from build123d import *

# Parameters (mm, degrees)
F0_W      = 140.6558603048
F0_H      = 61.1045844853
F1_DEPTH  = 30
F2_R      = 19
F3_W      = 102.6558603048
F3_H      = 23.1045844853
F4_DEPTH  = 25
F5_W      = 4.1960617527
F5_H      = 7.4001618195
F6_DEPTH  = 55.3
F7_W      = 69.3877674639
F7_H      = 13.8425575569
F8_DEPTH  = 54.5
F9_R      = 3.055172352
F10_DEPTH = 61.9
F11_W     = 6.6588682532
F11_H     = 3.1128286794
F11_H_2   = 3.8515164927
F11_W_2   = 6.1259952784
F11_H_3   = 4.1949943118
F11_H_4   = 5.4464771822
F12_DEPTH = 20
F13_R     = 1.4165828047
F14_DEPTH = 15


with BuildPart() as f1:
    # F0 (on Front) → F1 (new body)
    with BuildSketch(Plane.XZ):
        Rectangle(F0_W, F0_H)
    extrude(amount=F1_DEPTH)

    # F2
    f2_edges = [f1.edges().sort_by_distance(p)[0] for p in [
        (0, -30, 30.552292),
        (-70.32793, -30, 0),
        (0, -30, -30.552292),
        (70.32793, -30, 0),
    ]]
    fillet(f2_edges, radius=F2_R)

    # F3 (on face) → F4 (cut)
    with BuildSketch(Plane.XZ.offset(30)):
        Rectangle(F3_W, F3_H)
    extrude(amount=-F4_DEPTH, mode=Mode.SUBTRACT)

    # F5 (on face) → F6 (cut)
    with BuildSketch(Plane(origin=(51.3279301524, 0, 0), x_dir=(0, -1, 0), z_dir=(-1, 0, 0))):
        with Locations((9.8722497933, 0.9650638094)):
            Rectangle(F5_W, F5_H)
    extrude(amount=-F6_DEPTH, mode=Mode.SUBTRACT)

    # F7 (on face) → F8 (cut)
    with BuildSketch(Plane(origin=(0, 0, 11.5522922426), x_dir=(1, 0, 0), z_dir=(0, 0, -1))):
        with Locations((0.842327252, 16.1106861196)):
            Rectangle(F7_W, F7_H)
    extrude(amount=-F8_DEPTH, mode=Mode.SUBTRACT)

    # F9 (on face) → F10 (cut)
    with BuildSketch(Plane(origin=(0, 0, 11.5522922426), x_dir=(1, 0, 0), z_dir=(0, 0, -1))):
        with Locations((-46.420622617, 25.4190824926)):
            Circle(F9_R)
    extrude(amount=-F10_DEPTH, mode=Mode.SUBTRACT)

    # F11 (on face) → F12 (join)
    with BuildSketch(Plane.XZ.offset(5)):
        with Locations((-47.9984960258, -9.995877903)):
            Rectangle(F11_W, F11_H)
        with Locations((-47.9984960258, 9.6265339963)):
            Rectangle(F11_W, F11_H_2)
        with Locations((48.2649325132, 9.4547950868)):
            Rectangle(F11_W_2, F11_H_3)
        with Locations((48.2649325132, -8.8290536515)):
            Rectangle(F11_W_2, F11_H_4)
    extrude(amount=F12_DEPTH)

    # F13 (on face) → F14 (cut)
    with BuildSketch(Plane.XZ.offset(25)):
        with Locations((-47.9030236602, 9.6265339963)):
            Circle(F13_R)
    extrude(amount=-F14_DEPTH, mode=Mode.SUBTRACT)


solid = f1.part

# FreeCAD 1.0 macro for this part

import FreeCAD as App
import Part
import Sketcher
from FreeCAD import Vector
Q = App.Units.Quantity


def edges_at(feature, points):
    """Names of the edges that pass closest to the given points."""
    edges = feature.Shape.Edges
    near = lambda p: min(range(len(edges)), key=lambda i: edges[i].distToShape(Part.Vertex(*p))[0])
    return sorted({f"Edge{near(p) + 1}" for p in points})

doc = App.newDocument("Part")
body = doc.addObject("PartDesign::Body", "Body")

sketch1 = body.newObject("Sketcher::SketchObject", "Sketch")
sketch1.AttachmentSupport = (doc.getObject("XZ_Plane"), [""])
sketch1.MapMode = "FlatFace"
sketch1.addGeometry([
    Part.LineSegment(Vector(-70, 31, 0), Vector(-70, -31, 0)),
    Part.LineSegment(Vector(-70, -31, 0), Vector(70, -31, 0)),
    Part.LineSegment(Vector(70, -31, 0), Vector(70, 31, 0)),
    Part.LineSegment(Vector(70, 31, 0), Vector(-70, 31, 0)),
], False)
sketch1.addConstraint([
    Sketcher.Constraint("Coincident", 0, 2, 1, 1),
    Sketcher.Constraint("Coincident", 1, 2, 2, 1),
    Sketcher.Constraint("Coincident", 2, 2, 3, 1),
    Sketcher.Constraint("Coincident", 3, 2, 0, 1),
    Sketcher.Constraint("Vertical", 0),
    Sketcher.Constraint("Horizontal", 1),
    Sketcher.Constraint("Vertical", 2),
    Sketcher.Constraint("Horizontal", 3),
    Sketcher.Constraint("Symmetric", 0, 2, 2, 2, -1, 1),
    Sketcher.Constraint("DistanceX", 1, 1, 1, 2, Q("140.65586 mm")),
    Sketcher.Constraint("DistanceY", 0, 2, 0, 1, Q("61.104584 mm")),
])
pad1 = body.newObject("PartDesign::Pad", "Pad")
pad1.Profile = sketch1
pad1.Length = 30
doc.recompute()

fillet = body.newObject("PartDesign::Fillet", "Fillet")
fillet.Base = (pad1, edges_at(pad1, [
    (0, -30, 30.552),
    (-70.328, -30, 0),
    (0, -30, -30.552),
    (70.328, -30, 0),
]))
fillet.Radius = 19

sketch2 = body.newObject("Sketcher::SketchObject", "Sketch001")
sketch2.AttachmentSupport = (doc.getObject("XZ_Plane"), [""])
sketch2.MapMode = "FlatFace"
sketch2.AttachmentOffset = App.Placement(Vector(0, 0, 30), App.Rotation())
sketch2.addGeometry([
    Part.LineSegment(Vector(-51, 12, 0), Vector(-51, -12, 0)),
    Part.LineSegment(Vector(-51, -12, 0), Vector(51, -12, 0)),
    Part.LineSegment(Vector(51, -12, 0), Vector(51, 12, 0)),
    Part.LineSegment(Vector(51, 12, 0), Vector(-51, 12, 0)),
], False)
sketch2.addConstraint([
    Sketcher.Constraint("Coincident", 0, 2, 1, 1),
    Sketcher.Constraint("Coincident", 1, 2, 2, 1),
    Sketcher.Constraint("Coincident", 2, 2, 3, 1),
    Sketcher.Constraint("Coincident", 3, 2, 0, 1),
    Sketcher.Constraint("Vertical", 0),
    Sketcher.Constraint("Horizontal", 1),
    Sketcher.Constraint("Vertical", 2),
    Sketcher.Constraint("Horizontal", 3),
    Sketcher.Constraint("Symmetric", 0, 2, 2, 2, -1, 1),
    Sketcher.Constraint("DistanceX", 1, 1, 1, 2, Q("102.65586 mm")),
    Sketcher.Constraint("DistanceY", 0, 2, 0, 1, Q("23.104584 mm")),
])
pocket1 = body.newObject("PartDesign::Pocket", "Pocket")
pocket1.Profile = sketch2
pocket1.Length = 25

sketch3 = body.newObject("Sketcher::SketchObject", "Sketch002")
sketch3.AttachmentSupport = (doc.getObject("YZ_Plane"), [""])
sketch3.MapMode = "FlatFace"
sketch3.AttachmentOffset = App.Placement(Vector(0, 0, 51.32793), App.Rotation())
sketch3.addGeometry([
    Part.LineSegment(Vector(-7.8, 4.7, 0), Vector(-7.8, -2.7, 0)),
    Part.LineSegment(Vector(-7.8, -2.7, 0), Vector(-12, -2.7, 0)),
    Part.LineSegment(Vector(-12, -2.7, 0), Vector(-12, 4.7, 0)),
    Part.LineSegment(Vector(-12, 4.7, 0), Vector(-7.8, 4.7, 0)),
], False)
sketch3.addConstraint([
    Sketcher.Constraint("Coincident", 0, 2, 1, 1),
    Sketcher.Constraint("Coincident", 1, 2, 2, 1),
    Sketcher.Constraint("Coincident", 2, 2, 3, 1),
    Sketcher.Constraint("Coincident", 3, 2, 0, 1),
    Sketcher.Constraint("Vertical", 0),
    Sketcher.Constraint("Horizontal", 1),
    Sketcher.Constraint("Vertical", 2),
    Sketcher.Constraint("Horizontal", 3),
    Sketcher.Constraint("DistanceX", 1, 2, 1, 1, Q("4.196062 mm")),
    Sketcher.Constraint("DistanceY", 0, 2, 0, 1, Q("7.400162 mm")),
    Sketcher.Constraint("DistanceX", 0, 2, -1, 1, Q("7.774219 mm")),
    Sketcher.Constraint("DistanceY", 0, 2, -1, 1, Q("2.735017 mm")),
])
pocket2 = body.newObject("PartDesign::Pocket", "Pocket001")
pocket2.Profile = sketch3
pocket2.Length = 55.3
pocket2.Reversed = True

sketch4 = body.newObject("Sketcher::SketchObject", "Sketch003")
sketch4.AttachmentSupport = (doc.getObject("XY_Plane"), [""])
sketch4.MapMode = "FlatFace"
sketch4.AttachmentOffset = App.Placement(Vector(0, 0, 11.552292), App.Rotation())
sketch4.addGeometry([
    Part.LineSegment(Vector(-34, -23, 0), Vector(-34, -9, 0)),
    Part.LineSegment(Vector(-34, -9, 0), Vector(36, -9, 0)),
    Part.LineSegment(Vector(36, -9, 0), Vector(36, -23, 0)),
    Part.LineSegment(Vector(36, -23, 0), Vector(-34, -23, 0)),
], False)
sketch4.addConstraint([
    Sketcher.Constraint("Coincident", 0, 2, 1, 1),
    Sketcher.Constraint("Coincident", 1, 2, 2, 1),
    Sketcher.Constraint("Coincident", 2, 2, 3, 1),
    Sketcher.Constraint("Coincident", 3, 2, 0, 1),
    Sketcher.Constraint("Vertical", 0),
    Sketcher.Constraint("Horizontal", 1),
    Sketcher.Constraint("Vertical", 2),
    Sketcher.Constraint("Horizontal", 3),
    Sketcher.Constraint("DistanceX", 1, 1, 1, 2, Q("69.387767 mm")),
    Sketcher.Constraint("DistanceY", 0, 1, 0, 2, Q("13.842558 mm")),
    Sketcher.Constraint("DistanceX", -1, 1, 1, 2, Q("35.536211 mm")),
    Sketcher.Constraint("DistanceY", 0, 2, -1, 1, Q("9.189407 mm")),
])
pocket3 = body.newObject("PartDesign::Pocket", "Pocket002")
pocket3.Profile = sketch4
pocket3.Length = 54.5
pocket3.Reversed = True

sketch5 = body.newObject("Sketcher::SketchObject", "Sketch004")
sketch5.AttachmentSupport = (doc.getObject("XY_Plane"), [""])
sketch5.MapMode = "FlatFace"
sketch5.AttachmentOffset = App.Placement(Vector(0, 0, 11.552292), App.Rotation())
sketch5.addGeometry(Part.Circle(Vector(-46.4, -25.4, 0), Vector(0, 0, 1), 3.1), False)
sketch5.addConstraint([
    Sketcher.Constraint("Diameter", 0, Q("6.110345 mm")),
    Sketcher.Constraint("DistanceX", 0, 3, -1, 1, Q("46.420623 mm")),
    Sketcher.Constraint("DistanceY", 0, 3, -1, 1, Q("25.419082 mm")),
])
pocket4 = body.newObject("PartDesign::Pocket", "Pocket003")
pocket4.Profile = sketch5
pocket4.Length = 61.9
pocket4.Reversed = True

sketch6 = body.newObject("Sketcher::SketchObject", "Sketch005")
sketch6.AttachmentSupport = (doc.getObject("XZ_Plane"), [""])
sketch6.MapMode = "FlatFace"
sketch6.AttachmentOffset = App.Placement(Vector(0, 0, 5), App.Rotation())
sketch6.addGeometry([
    Part.LineSegment(Vector(-51.3, -8.4, 0), Vector(-51.3, -11.6, 0)),
    Part.LineSegment(Vector(-51.3, -11.6, 0), Vector(-44.7, -11.6, 0)),
    Part.LineSegment(Vector(-44.7, -11.6, 0), Vector(-44.7, -8.4, 0)),
    Part.LineSegment(Vector(-44.7, -8.4, 0), Vector(-51.3, -8.4, 0)),
    Part.LineSegment(Vector(-51.3, 11.6, 0), Vector(-51.3, 7.7, 0)),
    Part.LineSegment(Vector(-51.3, 7.7, 0), Vector(-44.7, 7.7, 0)),
    Part.LineSegment(Vector(-44.7, 7.7, 0), Vector(-44.7, 11.6, 0)),
    Part.LineSegment(Vector(-44.7, 11.6, 0), Vector(-51.3, 11.6, 0)),
    Part.LineSegment(Vector(45.2, 11.6, 0), Vector(45.2, 7.4, 0)),
    Part.LineSegment(Vector(45.2, 7.4, 0), Vector(51.3, 7.4, 0)),
    Part.LineSegment(Vector(51.3, 7.4, 0), Vector(51.3, 11.6, 0)),
    Part.LineSegment(Vector(51.3, 11.6, 0), Vector(45.2, 11.6, 0)),
    Part.LineSegment(Vector(45.2, -6.1, 0), Vector(45.2, -11.6, 0)),
    Part.LineSegment(Vector(45.2, -11.6, 0), Vector(51.3, -11.6, 0)),
    Part.LineSegment(Vector(51.3, -11.6, 0), Vector(51.3, -6.1, 0)),
    Part.LineSegment(Vector(51.3, -6.1, 0), Vector(45.2, -6.1, 0)),
], False)
sketch6.addConstraint([
    Sketcher.Constraint("Coincident", 0, 2, 1, 1),
    Sketcher.Constraint("Coincident", 1, 2, 2, 1),
    Sketcher.Constraint("Coincident", 2, 2, 3, 1),
    Sketcher.Constraint("Coincident", 3, 2, 0, 1),
    Sketcher.Constraint("Coincident", 4, 2, 5, 1),
    Sketcher.Constraint("Coincident", 5, 2, 6, 1),
    Sketcher.Constraint("Coincident", 6, 2, 7, 1),
    Sketcher.Constraint("Coincident", 7, 2, 4, 1),
    Sketcher.Constraint("Coincident", 8, 2, 9, 1),
    Sketcher.Constraint("Coincident", 9, 2, 10, 1),
    Sketcher.Constraint("Coincident", 10, 2, 11, 1),
    Sketcher.Constraint("Coincident", 11, 2, 8, 1),
    Sketcher.Constraint("Coincident", 12, 2, 13, 1),
    Sketcher.Constraint("Coincident", 13, 2, 14, 1),
    Sketcher.Constraint("Coincident", 14, 2, 15, 1),
    Sketcher.Constraint("Coincident", 15, 2, 12, 1),
    Sketcher.Constraint("Vertical", 0),
    Sketcher.Constraint("Horizontal", 1),
    Sketcher.Constraint("Vertical", 2),
    Sketcher.Constraint("Horizontal", 3),
    Sketcher.Constraint("Vertical", 4),
    Sketcher.Constraint("Horizontal", 5),
    Sketcher.Constraint("Vertical", 6),
    Sketcher.Constraint("Horizontal", 7),
    Sketcher.Constraint("Vertical", 8),
    Sketcher.Constraint("Horizontal", 9),
    Sketcher.Constraint("Vertical", 10),
    Sketcher.Constraint("Horizontal", 11),
    Sketcher.Constraint("Vertical", 12),
    Sketcher.Constraint("Horizontal", 13),
    Sketcher.Constraint("Vertical", 14),
    Sketcher.Constraint("Horizontal", 15),
    Sketcher.Constraint("Symmetric", 0, 2, 10, 2, -1, 1),
    Sketcher.Constraint("Symmetric", 7, 2, 13, 2, -1, 1),
    Sketcher.Constraint("Symmetric", 7, 2, 10, 2, -2),
    Sketcher.Constraint("Vertical", 2, 2, 5, 2),
    Sketcher.Constraint("Vertical", 11, 2, 12, 2),
    Sketcher.Constraint("DistanceX", 1, 1, 1, 2, Q("6.658868 mm")),
    Sketcher.Constraint("DistanceY", 0, 2, 0, 1, Q("3.112829 mm")),
    Sketcher.Constraint("DistanceX", 9, 1, 9, 2, Q("6.125995 mm")),
    Sketcher.Constraint("DistanceY", 4, 2, 4, 1, Q("3.851516 mm")),
    Sketcher.Constraint("DistanceY", 8, 2, 8, 1, Q("4.194994 mm")),
    Sketcher.Constraint("DistanceY", 12, 2, 12, 1, Q("5.446477 mm")),
    Sketcher.Constraint("DistanceX", 0, 2, -1, 1, Q("51.32793 mm")),
    Sketcher.Constraint("DistanceY", 3, 2, 4, 2, Q("16.140239 mm")),
])
pad2 = body.newObject("PartDesign::Pad", "Pad001")
pad2.Profile = sketch6
pad2.Length = 20

sketch7 = body.newObject("Sketcher::SketchObject", "Sketch006")
sketch7.AttachmentSupport = (doc.getObject("XZ_Plane"), [""])
sketch7.MapMode = "FlatFace"
sketch7.AttachmentOffset = App.Placement(Vector(0, 0, 25), App.Rotation())
sketch7.addGeometry(Part.Circle(Vector(-47.9, 9.6, 0), Vector(0, 0, 1), 1.4), False)
sketch7.addConstraint([
    Sketcher.Constraint("Diameter", 0, Q("2.833166 mm")),
    Sketcher.Constraint("DistanceX", 0, 3, -1, 1, Q("47.903024 mm")),
    Sketcher.Constraint("DistanceY", -1, 1, 0, 3, Q("9.626534 mm")),
])
pocket5 = body.newObject("PartDesign::Pocket", "Pocket004")
pocket5.Profile = sketch7
pocket5.Length = 15

doc.recompute()
